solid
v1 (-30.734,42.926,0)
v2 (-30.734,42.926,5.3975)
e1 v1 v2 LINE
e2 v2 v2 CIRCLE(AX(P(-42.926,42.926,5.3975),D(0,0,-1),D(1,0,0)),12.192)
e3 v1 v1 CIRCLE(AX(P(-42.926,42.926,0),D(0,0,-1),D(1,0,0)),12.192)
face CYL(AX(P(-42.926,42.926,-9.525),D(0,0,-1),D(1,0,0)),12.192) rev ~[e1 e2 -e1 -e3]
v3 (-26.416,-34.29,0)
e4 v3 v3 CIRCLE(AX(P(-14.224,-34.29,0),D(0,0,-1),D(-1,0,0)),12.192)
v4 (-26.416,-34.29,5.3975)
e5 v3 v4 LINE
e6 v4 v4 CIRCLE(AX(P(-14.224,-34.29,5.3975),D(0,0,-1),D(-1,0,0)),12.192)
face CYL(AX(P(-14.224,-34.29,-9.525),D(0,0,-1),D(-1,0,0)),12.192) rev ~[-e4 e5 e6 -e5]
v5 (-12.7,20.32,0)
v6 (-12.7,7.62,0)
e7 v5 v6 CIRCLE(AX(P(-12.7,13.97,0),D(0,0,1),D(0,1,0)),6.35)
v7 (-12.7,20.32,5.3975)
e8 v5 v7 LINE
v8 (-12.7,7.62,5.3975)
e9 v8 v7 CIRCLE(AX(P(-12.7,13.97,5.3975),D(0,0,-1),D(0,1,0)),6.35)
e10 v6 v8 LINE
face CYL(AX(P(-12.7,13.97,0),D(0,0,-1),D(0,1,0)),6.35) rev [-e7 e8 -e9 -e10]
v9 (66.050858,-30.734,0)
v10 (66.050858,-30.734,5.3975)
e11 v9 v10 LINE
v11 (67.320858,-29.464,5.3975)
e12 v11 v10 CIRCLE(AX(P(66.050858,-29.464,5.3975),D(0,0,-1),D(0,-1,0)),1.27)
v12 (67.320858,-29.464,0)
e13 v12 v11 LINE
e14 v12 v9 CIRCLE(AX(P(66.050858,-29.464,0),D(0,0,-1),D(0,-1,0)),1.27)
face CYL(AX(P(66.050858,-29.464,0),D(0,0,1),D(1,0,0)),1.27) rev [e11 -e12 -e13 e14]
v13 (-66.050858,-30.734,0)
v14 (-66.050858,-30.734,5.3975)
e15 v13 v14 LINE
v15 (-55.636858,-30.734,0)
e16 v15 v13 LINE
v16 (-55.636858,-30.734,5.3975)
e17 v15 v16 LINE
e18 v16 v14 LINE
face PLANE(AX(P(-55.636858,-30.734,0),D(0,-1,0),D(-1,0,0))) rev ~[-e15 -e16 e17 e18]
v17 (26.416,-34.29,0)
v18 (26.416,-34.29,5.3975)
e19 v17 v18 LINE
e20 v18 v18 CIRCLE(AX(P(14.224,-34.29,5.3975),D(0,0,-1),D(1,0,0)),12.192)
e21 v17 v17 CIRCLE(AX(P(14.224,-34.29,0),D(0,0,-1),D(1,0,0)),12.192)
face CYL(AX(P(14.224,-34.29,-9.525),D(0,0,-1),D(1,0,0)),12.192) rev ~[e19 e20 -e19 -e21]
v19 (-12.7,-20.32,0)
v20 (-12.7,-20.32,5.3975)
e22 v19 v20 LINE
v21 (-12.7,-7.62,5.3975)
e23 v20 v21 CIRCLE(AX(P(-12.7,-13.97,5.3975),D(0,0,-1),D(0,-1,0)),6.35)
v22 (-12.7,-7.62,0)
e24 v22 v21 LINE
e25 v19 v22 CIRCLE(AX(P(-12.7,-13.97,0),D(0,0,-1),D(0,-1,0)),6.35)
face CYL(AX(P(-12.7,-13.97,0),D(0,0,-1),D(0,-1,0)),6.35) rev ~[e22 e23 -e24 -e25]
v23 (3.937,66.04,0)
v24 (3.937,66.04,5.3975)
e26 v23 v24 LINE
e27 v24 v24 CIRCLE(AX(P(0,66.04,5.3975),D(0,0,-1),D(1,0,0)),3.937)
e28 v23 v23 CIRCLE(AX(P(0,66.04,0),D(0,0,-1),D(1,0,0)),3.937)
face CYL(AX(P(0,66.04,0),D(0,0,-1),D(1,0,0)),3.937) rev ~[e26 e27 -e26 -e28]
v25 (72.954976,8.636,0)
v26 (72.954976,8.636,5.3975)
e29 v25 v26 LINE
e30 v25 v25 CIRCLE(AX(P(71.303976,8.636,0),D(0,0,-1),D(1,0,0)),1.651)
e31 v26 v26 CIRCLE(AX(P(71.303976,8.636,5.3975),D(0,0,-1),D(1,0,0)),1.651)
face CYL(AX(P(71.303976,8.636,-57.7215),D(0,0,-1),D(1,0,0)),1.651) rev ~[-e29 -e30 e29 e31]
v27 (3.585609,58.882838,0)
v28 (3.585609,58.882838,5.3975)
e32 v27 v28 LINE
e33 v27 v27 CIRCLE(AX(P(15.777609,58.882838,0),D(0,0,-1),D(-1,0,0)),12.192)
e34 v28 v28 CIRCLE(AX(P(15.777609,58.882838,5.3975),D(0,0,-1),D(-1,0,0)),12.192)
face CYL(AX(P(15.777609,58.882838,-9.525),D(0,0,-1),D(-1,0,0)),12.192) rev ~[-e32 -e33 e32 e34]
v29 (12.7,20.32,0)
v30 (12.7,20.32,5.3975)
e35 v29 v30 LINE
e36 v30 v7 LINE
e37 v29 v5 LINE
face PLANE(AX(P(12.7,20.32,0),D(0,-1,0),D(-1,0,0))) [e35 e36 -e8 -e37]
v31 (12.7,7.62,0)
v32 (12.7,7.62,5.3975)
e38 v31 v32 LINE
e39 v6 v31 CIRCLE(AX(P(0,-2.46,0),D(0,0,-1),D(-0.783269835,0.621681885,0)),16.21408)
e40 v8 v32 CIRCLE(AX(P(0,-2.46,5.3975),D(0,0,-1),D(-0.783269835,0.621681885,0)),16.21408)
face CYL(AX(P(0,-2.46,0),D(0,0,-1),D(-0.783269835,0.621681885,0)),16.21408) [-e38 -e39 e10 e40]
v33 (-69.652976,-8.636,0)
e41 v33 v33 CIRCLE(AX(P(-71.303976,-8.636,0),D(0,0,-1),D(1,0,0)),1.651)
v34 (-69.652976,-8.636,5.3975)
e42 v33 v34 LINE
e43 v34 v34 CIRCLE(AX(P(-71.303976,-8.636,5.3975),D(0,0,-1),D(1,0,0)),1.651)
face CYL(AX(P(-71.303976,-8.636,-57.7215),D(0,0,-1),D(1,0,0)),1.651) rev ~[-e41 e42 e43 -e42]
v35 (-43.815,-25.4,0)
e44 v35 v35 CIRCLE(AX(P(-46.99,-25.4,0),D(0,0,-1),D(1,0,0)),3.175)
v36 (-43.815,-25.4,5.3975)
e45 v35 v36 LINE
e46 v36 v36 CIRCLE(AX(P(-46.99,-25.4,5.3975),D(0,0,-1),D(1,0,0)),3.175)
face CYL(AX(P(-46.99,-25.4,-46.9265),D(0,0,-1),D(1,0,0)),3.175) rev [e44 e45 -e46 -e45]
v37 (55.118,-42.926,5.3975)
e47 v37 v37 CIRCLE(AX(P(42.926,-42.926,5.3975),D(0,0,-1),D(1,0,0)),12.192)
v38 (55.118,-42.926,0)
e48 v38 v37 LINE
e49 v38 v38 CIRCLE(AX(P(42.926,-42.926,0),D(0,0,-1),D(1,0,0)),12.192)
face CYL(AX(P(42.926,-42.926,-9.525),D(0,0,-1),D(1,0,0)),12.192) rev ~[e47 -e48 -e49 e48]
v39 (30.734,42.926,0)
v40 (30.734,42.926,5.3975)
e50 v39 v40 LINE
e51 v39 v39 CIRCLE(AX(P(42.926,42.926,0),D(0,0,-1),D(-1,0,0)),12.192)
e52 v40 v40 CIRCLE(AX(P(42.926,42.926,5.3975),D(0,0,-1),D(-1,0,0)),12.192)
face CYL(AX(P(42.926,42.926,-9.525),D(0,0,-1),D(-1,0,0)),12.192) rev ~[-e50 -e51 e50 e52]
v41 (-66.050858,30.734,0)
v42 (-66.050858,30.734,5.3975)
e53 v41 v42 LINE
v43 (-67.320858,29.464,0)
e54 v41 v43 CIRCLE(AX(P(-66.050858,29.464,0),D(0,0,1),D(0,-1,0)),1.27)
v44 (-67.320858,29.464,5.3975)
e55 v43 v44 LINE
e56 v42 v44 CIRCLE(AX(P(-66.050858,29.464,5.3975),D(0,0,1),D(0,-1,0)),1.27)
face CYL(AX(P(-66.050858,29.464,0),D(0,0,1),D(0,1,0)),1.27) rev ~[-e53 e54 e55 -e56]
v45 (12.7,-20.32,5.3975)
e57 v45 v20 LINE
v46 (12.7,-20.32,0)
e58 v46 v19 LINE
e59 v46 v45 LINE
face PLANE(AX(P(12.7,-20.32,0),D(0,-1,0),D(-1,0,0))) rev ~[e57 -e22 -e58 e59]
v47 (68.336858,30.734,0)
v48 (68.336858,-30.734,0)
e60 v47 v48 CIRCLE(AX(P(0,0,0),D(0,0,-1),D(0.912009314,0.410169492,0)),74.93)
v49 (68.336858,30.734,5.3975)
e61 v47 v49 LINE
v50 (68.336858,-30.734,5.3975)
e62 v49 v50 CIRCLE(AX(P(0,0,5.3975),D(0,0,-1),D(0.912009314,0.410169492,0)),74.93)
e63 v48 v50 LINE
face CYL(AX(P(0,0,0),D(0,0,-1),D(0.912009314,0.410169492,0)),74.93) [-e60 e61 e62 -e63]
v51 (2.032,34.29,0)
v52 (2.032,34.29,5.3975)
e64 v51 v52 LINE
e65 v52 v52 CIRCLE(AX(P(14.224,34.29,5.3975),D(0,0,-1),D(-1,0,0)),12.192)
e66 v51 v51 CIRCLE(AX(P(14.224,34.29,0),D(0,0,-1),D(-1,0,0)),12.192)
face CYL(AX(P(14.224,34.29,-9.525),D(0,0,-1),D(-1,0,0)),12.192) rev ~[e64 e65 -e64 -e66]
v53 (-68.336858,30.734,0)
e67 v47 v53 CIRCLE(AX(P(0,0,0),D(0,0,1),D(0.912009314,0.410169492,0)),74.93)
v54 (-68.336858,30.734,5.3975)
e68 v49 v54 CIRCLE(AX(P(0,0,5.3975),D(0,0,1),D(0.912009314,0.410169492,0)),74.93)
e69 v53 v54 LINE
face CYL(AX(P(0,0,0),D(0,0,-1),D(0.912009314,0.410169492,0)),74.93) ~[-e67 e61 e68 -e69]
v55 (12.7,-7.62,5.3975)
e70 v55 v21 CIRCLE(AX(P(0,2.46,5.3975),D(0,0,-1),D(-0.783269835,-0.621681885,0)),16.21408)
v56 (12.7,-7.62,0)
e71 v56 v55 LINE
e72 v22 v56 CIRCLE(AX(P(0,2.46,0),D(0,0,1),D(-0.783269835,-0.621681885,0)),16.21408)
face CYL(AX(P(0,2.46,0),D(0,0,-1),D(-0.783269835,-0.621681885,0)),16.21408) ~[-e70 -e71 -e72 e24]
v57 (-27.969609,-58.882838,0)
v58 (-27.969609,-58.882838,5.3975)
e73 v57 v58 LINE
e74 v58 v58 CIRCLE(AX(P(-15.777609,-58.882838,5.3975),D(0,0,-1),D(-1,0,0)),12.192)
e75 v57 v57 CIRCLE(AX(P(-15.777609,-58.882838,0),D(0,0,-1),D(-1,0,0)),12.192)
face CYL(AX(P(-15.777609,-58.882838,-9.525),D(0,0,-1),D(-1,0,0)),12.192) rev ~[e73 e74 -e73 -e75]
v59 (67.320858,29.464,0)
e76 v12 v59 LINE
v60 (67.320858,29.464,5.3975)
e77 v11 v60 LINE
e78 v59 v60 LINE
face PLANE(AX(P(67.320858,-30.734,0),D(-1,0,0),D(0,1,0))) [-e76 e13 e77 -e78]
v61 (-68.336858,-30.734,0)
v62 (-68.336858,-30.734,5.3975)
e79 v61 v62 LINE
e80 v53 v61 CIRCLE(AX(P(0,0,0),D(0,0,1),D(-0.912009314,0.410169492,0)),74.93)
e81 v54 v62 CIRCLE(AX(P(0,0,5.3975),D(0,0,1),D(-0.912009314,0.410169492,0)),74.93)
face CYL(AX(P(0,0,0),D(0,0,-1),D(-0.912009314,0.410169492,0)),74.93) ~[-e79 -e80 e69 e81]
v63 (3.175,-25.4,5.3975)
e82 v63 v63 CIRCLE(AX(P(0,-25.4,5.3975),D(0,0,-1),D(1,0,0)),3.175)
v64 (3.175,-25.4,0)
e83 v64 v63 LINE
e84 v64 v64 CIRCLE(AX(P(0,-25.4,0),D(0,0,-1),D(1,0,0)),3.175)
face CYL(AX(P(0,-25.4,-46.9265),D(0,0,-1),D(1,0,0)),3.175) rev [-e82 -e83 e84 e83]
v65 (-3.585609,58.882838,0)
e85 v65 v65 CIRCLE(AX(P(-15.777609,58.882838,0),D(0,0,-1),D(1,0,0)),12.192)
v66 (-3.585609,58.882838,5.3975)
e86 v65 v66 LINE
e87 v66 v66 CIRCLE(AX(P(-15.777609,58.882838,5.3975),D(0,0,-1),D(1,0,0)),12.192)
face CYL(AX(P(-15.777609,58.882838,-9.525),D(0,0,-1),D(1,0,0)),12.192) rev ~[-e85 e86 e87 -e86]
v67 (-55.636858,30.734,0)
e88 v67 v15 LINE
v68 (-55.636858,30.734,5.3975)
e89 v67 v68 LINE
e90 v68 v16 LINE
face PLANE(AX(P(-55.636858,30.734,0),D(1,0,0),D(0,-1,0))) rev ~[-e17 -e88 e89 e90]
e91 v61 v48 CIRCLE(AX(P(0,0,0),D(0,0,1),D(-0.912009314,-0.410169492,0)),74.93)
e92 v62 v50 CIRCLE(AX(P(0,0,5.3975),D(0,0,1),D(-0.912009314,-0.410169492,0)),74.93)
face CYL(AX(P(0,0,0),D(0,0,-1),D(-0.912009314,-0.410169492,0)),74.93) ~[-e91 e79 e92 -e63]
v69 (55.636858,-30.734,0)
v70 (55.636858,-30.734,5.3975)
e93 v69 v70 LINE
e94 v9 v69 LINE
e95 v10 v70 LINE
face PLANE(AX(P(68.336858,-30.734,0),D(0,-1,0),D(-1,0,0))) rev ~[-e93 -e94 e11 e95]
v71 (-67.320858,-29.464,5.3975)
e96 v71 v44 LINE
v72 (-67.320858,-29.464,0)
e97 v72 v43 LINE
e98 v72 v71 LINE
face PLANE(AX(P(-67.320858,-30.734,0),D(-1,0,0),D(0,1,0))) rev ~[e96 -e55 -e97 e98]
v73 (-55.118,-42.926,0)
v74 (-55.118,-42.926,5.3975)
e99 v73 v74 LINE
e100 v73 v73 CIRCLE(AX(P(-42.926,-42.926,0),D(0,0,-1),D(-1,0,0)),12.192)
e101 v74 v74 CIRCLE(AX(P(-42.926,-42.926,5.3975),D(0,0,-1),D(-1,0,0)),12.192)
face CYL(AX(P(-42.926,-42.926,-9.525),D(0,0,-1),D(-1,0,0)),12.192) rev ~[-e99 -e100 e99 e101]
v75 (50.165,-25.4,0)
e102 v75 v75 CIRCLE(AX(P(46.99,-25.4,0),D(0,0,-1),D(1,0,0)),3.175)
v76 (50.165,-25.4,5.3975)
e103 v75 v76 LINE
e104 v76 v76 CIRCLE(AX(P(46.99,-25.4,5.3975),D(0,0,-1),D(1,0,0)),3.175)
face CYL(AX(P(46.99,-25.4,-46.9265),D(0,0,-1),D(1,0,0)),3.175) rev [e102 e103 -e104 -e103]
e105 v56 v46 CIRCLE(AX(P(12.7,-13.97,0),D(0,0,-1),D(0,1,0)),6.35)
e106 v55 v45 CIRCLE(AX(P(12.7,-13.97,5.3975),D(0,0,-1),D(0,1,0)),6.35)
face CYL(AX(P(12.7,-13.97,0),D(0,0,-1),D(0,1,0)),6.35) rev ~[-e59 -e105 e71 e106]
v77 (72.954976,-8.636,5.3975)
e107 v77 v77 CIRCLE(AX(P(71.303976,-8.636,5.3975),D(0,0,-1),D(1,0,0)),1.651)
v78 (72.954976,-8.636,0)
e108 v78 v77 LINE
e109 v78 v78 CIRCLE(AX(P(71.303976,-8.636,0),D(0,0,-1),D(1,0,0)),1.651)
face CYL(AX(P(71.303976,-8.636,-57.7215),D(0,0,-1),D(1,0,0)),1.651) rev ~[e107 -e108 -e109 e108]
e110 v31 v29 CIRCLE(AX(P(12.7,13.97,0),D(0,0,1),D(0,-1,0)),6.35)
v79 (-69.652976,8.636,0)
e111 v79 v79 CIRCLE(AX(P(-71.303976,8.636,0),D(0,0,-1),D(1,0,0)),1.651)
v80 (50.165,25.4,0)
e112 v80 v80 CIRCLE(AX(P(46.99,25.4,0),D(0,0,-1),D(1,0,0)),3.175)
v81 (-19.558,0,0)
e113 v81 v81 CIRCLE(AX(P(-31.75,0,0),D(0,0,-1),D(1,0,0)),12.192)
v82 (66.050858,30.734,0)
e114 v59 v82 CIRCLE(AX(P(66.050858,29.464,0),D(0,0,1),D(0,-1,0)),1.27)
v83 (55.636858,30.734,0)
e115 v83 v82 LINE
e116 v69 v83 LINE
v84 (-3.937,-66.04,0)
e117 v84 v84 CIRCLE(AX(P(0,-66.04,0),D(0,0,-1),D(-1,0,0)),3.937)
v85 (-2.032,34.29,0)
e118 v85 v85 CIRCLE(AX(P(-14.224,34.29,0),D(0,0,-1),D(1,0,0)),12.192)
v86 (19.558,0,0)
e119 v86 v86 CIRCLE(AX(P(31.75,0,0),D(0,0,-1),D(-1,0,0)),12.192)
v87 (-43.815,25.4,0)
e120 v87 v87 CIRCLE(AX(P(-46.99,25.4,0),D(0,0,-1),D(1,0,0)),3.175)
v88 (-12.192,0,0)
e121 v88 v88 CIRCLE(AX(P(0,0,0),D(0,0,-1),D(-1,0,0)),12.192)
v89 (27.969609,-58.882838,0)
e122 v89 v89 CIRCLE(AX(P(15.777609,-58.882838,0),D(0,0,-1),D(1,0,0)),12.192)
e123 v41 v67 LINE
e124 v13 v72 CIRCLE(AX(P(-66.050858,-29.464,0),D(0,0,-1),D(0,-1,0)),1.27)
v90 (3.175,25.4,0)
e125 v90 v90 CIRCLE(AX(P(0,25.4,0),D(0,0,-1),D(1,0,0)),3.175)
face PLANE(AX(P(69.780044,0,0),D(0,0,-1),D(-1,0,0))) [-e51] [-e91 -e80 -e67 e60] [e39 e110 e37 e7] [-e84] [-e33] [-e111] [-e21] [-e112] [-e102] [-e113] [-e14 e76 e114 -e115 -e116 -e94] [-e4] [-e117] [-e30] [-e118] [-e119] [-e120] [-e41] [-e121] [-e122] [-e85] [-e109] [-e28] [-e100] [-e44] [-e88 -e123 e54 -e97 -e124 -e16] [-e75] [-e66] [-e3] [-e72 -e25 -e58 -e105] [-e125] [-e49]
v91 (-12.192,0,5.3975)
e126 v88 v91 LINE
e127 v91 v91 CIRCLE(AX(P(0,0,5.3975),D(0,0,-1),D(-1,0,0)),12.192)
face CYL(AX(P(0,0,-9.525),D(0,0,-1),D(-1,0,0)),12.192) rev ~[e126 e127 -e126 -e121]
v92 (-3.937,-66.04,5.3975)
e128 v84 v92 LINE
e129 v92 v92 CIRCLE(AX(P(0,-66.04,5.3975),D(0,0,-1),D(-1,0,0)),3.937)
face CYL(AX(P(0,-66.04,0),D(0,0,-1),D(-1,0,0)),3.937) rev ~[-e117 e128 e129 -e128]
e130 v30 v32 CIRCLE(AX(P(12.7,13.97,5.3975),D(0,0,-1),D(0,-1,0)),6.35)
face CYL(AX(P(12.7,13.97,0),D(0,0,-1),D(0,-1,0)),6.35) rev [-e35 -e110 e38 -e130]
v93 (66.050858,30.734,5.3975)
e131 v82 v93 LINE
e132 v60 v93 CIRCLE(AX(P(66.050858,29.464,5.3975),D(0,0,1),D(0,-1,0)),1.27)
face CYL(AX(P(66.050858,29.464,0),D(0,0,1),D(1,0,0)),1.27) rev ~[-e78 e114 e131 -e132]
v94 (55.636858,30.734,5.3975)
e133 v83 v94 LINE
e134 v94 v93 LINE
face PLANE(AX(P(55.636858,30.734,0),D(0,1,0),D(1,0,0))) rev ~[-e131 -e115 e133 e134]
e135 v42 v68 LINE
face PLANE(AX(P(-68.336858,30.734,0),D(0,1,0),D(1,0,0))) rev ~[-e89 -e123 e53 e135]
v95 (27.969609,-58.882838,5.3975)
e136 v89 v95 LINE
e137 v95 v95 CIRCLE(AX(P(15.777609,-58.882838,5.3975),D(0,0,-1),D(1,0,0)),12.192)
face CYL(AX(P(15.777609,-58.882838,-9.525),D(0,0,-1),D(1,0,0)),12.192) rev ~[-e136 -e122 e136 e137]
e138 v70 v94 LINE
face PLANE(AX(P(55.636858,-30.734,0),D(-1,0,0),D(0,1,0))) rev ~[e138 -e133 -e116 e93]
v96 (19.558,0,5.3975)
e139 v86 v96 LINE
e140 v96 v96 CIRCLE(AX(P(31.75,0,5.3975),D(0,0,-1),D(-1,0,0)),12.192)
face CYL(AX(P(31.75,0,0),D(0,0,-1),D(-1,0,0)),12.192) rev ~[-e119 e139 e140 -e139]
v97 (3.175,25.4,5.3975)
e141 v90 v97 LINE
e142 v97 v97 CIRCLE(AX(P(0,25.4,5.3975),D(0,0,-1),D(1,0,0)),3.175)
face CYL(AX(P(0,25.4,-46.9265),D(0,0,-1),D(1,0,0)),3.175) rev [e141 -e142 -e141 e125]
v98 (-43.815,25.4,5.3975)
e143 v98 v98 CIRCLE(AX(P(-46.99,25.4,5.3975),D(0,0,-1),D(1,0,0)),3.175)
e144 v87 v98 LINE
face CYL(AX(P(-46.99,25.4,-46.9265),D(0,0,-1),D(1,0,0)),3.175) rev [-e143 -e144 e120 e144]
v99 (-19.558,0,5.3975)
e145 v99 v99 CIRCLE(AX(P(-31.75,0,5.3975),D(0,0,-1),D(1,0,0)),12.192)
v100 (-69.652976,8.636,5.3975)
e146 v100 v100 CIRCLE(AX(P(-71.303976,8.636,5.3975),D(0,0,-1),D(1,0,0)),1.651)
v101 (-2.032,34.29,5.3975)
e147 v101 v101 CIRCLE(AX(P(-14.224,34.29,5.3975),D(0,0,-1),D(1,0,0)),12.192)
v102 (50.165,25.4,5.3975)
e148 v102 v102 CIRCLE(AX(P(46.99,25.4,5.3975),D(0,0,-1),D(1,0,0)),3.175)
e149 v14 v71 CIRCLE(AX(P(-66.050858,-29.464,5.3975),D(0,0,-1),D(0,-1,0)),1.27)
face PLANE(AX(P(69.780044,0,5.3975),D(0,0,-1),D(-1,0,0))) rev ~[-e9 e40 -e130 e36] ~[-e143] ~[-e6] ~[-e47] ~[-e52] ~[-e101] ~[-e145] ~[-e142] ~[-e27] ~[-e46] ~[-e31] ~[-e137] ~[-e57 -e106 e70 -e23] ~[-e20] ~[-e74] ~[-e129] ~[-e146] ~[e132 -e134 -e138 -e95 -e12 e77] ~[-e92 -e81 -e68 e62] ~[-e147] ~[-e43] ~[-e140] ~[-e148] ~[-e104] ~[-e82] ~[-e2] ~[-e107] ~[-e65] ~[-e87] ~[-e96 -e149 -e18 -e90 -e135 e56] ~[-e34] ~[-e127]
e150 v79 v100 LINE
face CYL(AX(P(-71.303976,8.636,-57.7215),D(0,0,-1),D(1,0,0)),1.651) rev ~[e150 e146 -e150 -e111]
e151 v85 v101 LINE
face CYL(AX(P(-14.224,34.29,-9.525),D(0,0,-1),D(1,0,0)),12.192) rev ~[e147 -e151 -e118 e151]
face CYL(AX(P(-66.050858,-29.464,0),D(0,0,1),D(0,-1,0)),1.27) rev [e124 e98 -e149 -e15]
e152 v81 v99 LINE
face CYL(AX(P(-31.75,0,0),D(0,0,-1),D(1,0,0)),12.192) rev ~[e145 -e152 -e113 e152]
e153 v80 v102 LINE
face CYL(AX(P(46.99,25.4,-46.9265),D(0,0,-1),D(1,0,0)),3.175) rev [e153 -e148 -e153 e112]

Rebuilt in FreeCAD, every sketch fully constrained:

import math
import FreeCAD as App
import Part
import Sketcher
Q = App.Units.Quantity


def edges_at(feature, points):
    """Names of the edges that pass closest to the given points."""
    edges = feature.Shape.Edges
    near = lambda p: min(range(len(edges)), key=lambda i: edges[i].distToShape(Part.Vertex(*p))[0])
    return sorted({f"Edge{near(p) + 1}" for p in points})

doc = App.newDocument("Part")
body = doc.addObject("PartDesign::Body", "Body")

sketch1 = doc.addObject("Sketcher::SketchObject", "Sketch")
body.addObject(sketch1)
sketch1.AttachmentSupport = (doc.XY_Plane, [""])
sketch1.MapMode = "FlatFace"
sketch1.addGeometry(Part.LineSegment(App.Vector(-68.3, 30.7, 0), App.Vector(-55.6, 30.7, 0)), False)
sketch1.addGeometry(Part.LineSegment(App.Vector(-55.6, 30.7, 0), App.Vector(-55.6, -30.7, 0)), False)
sketch1.addGeometry(Part.LineSegment(App.Vector(-55.6, -30.7, 0), App.Vector(-68.3, -30.7, 0)), False)
sketch1.addGeometry(Part.ArcOfCircle(Part.Circle(App.Vector(0, 0, 0), App.Vector(0, 0, 1), 74.9), math.radians(-156), math.radians(-24)), False)
sketch1.addGeometry(Part.LineSegment(App.Vector(68.3, -30.7, 0), App.Vector(55.6, -30.7, 0)), False)
sketch1.addGeometry(Part.LineSegment(App.Vector(55.6, -30.7, 0), App.Vector(55.6, 30.7, 0)), False)
sketch1.addGeometry(Part.LineSegment(App.Vector(55.6, 30.7, 0), App.Vector(68.3, 30.7, 0)), False)
sketch1.addGeometry(Part.ArcOfCircle(Part.Circle(App.Vector(0, 0, 0), App.Vector(0, 0, 1), 74.9), math.radians(24), math.radians(156)), False)
sketch1.addGeometry(Part.Circle(App.Vector(-45.5, -11, 0), App.Vector(0, 0, 1), 1.7), False)
sketch1.addGeometry(Part.Circle(App.Vector(-20.1, -10.8, 0), App.Vector(0, 0, 1), 1.7), False)
sketch1.addGeometry(Part.Circle(App.Vector(20.1, -10.8, 0), App.Vector(0, 0, 1), 1.7), False)
sketch1.addGeometry(Part.Circle(App.Vector(45.5, -11, 0), App.Vector(0, 0, 1), 1.7), False)
sketch1.addGeometry(Part.Circle(App.Vector(-45.5, 11, 0), App.Vector(0, 0, 1), 1.7), False)
sketch1.addGeometry(Part.Circle(App.Vector(-20.1, 10.8, 0), App.Vector(0, 0, 1), 1.7), False)
sketch1.addGeometry(Part.Circle(App.Vector(20.1, 10.8, 0), App.Vector(0, 0, 1), 1.7), False)
sketch1.addGeometry(Part.Circle(App.Vector(45.5, 11, 0), App.Vector(0, 0, 1), 1.7), False)
sketch1.addConstraint(Sketcher.Constraint("Coincident", 0, 2, 1, 1))
sketch1.addConstraint(Sketcher.Constraint("Coincident", 1, 2, 2, 1))
sketch1.addConstraint(Sketcher.Constraint("Coincident", 2, 2, 3, 1))
sketch1.addConstraint(Sketcher.Constraint("Coincident", 3, 2, 4, 1))
sketch1.addConstraint(Sketcher.Constraint("Coincident", 4, 2, 5, 1))
sketch1.addConstraint(Sketcher.Constraint("Coincident", 5, 2, 6, 1))
sketch1.addConstraint(Sketcher.Constraint("Coincident", 6, 2, 7, 1))
sketch1.addConstraint(Sketcher.Constraint("Coincident", 7, 2, 0, 1))
sketch1.addConstraint(Sketcher.Constraint("Horizontal", 0))
sketch1.addConstraint(Sketcher.Constraint("Vertical", 1))
sketch1.addConstraint(Sketcher.Constraint("Horizontal", 2))
sketch1.addConstraint(Sketcher.Constraint("Horizontal", 4))
sketch1.addConstraint(Sketcher.Constraint("Vertical", 5))
sketch1.addConstraint(Sketcher.Constraint("Horizontal", 6))
sketch1.addConstraint(Sketcher.Constraint("Coincident", 3, 3, -1, 1))
sketch1.addConstraint(Sketcher.Constraint("Coincident", 7, 3, -1, 1))
sketch1.addConstraint(Sketcher.Constraint("Equal", 3, 7))
sketch1.addConstraint(Sketcher.Constraint("Equal", 8, 9))
sketch1.addConstraint(Sketcher.Constraint("Equal", 9, 10))
sketch1.addConstraint(Sketcher.Constraint("Equal", 10, 11))
sketch1.addConstraint(Sketcher.Constraint("Equal", 11, 12))
sketch1.addConstraint(Sketcher.Constraint("Equal", 12, 13))
sketch1.addConstraint(Sketcher.Constraint("Equal", 13, 14))
sketch1.addConstraint(Sketcher.Constraint("Equal", 14, 15))
sketch1.addConstraint(Sketcher.Constraint("Symmetric", 11, 3, 12, 3, -1, 1))
sketch1.addConstraint(Sketcher.Constraint("Symmetric", 10, 3, 13, 3, -1, 1))
sketch1.addConstraint(Sketcher.Constraint("Symmetric", 9, 3, 14, 3, -1, 1))
sketch1.addConstraint(Sketcher.Constraint("Symmetric", 8, 3, 15, 3, -1, 1))
sketch1.addConstraint(Sketcher.Constraint("Symmetric", 0, 2, 4, 2, -1, 1))
sketch1.addConstraint(Sketcher.Constraint("Symmetric", 9, 3, 10, 3, -2))
sketch1.addConstraint(Sketcher.Constraint("Symmetric", 8, 3, 11, 3, -2))
sketch1.addConstraint(Sketcher.Constraint("Horizontal", 2, 2, 3, 2))
sketch1.addConstraint(Sketcher.Constraint("Horizontal", 0, 2, 5, 2))
sketch1.addConstraint(Sketcher.Constraint("Diameter", 8, Q("0.13 in")))
sketch1.addConstraint(Sketcher.Constraint("Radius", 3, Q("2.95 in")))
sketch1.addConstraint(Sketcher.Constraint("DistanceX", 0, 1, 0, 2, Q("0.5 in")))
sketch1.addConstraint(Sketcher.Constraint("DistanceY", 1, 2, 1, 1, Q("2.42 in")))
sketch1.addConstraint(Sketcher.Constraint("DistanceX", 8, 3, -1, 1, Q("1.79 in")))
sketch1.addConstraint(Sketcher.Constraint("DistanceY", 8, 3, 9, 3, Q("0.01 in")))
sketch1.addConstraint(Sketcher.Constraint("DistanceY", 8, 3, 12, 3, Q("0.87 in")))
sketch1.addConstraint(Sketcher.Constraint("DistanceX", 9, 3, 10, 3, Q("1.5801 in")))
pad1 = doc.addObject("PartDesign::Pad", "Pad")
body.addObject(pad1)
pad1.Profile = sketch1
pad1.Length = Q("0.2125 in")

sketch2 = doc.addObject("Sketcher::SketchObject", "Sketch001")
body.addObject(sketch2)
sketch2.AttachmentSupport = (doc.XY_Plane, [""])
sketch2.MapMode = "FlatFace"
sketch2.addGeometry(Part.LineSegment(App.Vector(68.3, -30.7, 0), App.Vector(67.3, -30.7, 0)), False)
sketch2.addGeometry(Part.LineSegment(App.Vector(67.3, -30.7, 0), App.Vector(67.3, 30.7, 0)), False)
sketch2.addGeometry(Part.LineSegment(App.Vector(67.3, 30.7, 0), App.Vector(68.3, 30.7, 0)), False)
sketch2.addGeometry(Part.ArcOfCircle(Part.Circle(App.Vector(0, 0, 0), App.Vector(0, 0, 1), 74.9), math.radians(-24), math.radians(24)), False)
sketch2.addGeometry(Part.LineSegment(App.Vector(-68.3, 30.7, 0), App.Vector(-67.3, 30.7, 0)), False)
sketch2.addGeometry(Part.LineSegment(App.Vector(-67.3, 30.7, 0), App.Vector(-67.3, -30.7, 0)), False)
sketch2.addGeometry(Part.LineSegment(App.Vector(-67.3, -30.7, 0), App.Vector(-68.3, -30.7, 0)), False)
sketch2.addGeometry(Part.ArcOfCircle(Part.Circle(App.Vector(0, 0, 0), App.Vector(0, 0, 1), 74.9), math.radians(156), math.radians(204)), False)
sketch2.addConstraint(Sketcher.Constraint("Coincident", 0, 2, 1, 1))
sketch2.addConstraint(Sketcher.Constraint("Coincident", 1, 2, 2, 1))
sketch2.addConstraint(Sketcher.Constraint("Coincident", 2, 2, 3, 2))
sketch2.addConstraint(Sketcher.Constraint("Coincident", 3, 1, 0, 1))
sketch2.addConstraint(Sketcher.Constraint("Coincident", 4, 2, 5, 1))
sketch2.addConstraint(Sketcher.Constraint("Coincident", 5, 2, 6, 1))
sketch2.addConstraint(Sketcher.Constraint("Coincident", 6, 2, 7, 2))
sketch2.addConstraint(Sketcher.Constraint("Coincident", 7, 1, 4, 1))
sketch2.addConstraint(Sketcher.Constraint("Horizontal", 0))
sketch2.addConstraint(Sketcher.Constraint("Vertical", 1))
sketch2.addConstraint(Sketcher.Constraint("Horizontal", 2))
sketch2.addConstraint(Sketcher.Constraint("Horizontal", 4))
sketch2.addConstraint(Sketcher.Constraint("Vertical", 5))
sketch2.addConstraint(Sketcher.Constraint("Horizontal", 6))
sketch2.addConstraint(Sketcher.Constraint("Coincident", 3, 3, -1, 1))
sketch2.addConstraint(Sketcher.Constraint("Coincident", 7, 3, -1, 1))
sketch2.addConstraint(Sketcher.Constraint("Equal", 3, 7))
sketch2.addConstraint(Sketcher.Constraint("Symmetric", 0, 2, 4, 2, -1, 1))
sketch2.addConstraint(Sketcher.Constraint("Horizontal", 2, 2, 4, 2))
sketch2.addConstraint(Sketcher.Constraint("Horizontal", 3, 1, 5, 2))
sketch2.addConstraint(Sketcher.Constraint("Radius", 3, Q("2.95 in")))
sketch2.addConstraint(Sketcher.Constraint("DistanceX", 0, 2, 0, 1, Q("0.04 in")))
sketch2.addConstraint(Sketcher.Constraint("DistanceY", 1, 1, 1, 2, Q("2.42 in")))
pad2 = doc.addObject("PartDesign::Pad", "Pad001")
body.addObject(pad2)
pad2.Profile = sketch2
pad2.Length = Q("0.2125 in")
doc.recompute()

fillet = doc.addObject("PartDesign::Fillet", "Fillet")
body.addObject(fillet)
fillet.Base = (pad2, edges_at(pad2, [
    (67.321, -30.734, 2.699),
    (67.321, 30.734, 2.699),
    (-67.321, 30.734, 2.699),
    (-67.321, -30.734, 2.699),
]))
fillet.Radius = Q("0.05 in")

sketch3 = doc.addObject("Sketcher::SketchObject", "Sketch002")
body.addObject(sketch3)
sketch3.AttachmentSupport = (doc.XY_Plane, [""])
sketch3.MapMode = "FlatFace"
sketch3.addGeometry(Part.LineSegment(App.Vector(-17, 15, 0), App.Vector(-17, -16, 0)), False)
sketch3.addGeometry(Part.LineSegment(App.Vector(-17, -16, 0), App.Vector(-53, -16, 0)), False)
sketch3.addGeometry(Part.LineSegment(App.Vector(-53, -16, 0), App.Vector(-53, 15, 0)), False)
sketch3.addGeometry(Part.LineSegment(App.Vector(-53, 15, 0), App.Vector(-17, 15, 0)), False)
sketch3.addGeometry(Part.LineSegment(App.Vector(51, 18, 0), App.Vector(51, -16, 0)), False)
sketch3.addGeometry(Part.LineSegment(App.Vector(51, -16, 0), App.Vector(15, -16, 0)), False)
sketch3.addGeometry(Part.LineSegment(App.Vector(15, -16, 0), App.Vector(15, 18, 0)), False)
sketch3.addGeometry(Part.LineSegment(App.Vector(15, 18, 0), App.Vector(51, 18, 0)), False)
sketch3.addConstraint(Sketcher.Constraint("Coincident", 0, 2, 1, 1))
sketch3.addConstraint(Sketcher.Constraint("Coincident", 1, 2, 2, 1))
sketch3.addConstraint(Sketcher.Constraint("Coincident", 2, 2, 3, 1))
sketch3.addConstraint(Sketcher.Constraint("Coincident", 3, 2, 0, 1))
sketch3.addConstraint(Sketcher.Constraint("Coincident", 4, 2, 5, 1))
sketch3.addConstraint(Sketcher.Constraint("Coincident", 5, 2, 6, 1))
sketch3.addConstraint(Sketcher.Constraint("Coincident", 6, 2, 7, 1))
sketch3.addConstraint(Sketcher.Constraint("Coincident", 7, 2, 4, 1))
sketch3.addConstraint(Sketcher.Constraint("Vertical", 0))
sketch3.addConstraint(Sketcher.Constraint("Horizontal", 1))
sketch3.addConstraint(Sketcher.Constraint("Vertical", 2))
sketch3.addConstraint(Sketcher.Constraint("Horizontal", 3))
sketch3.addConstraint(Sketcher.Constraint("Vertical", 4))
sketch3.addConstraint(Sketcher.Constraint("Horizontal", 5))
sketch3.addConstraint(Sketcher.Constraint("Vertical", 6))
sketch3.addConstraint(Sketcher.Constraint("Horizontal", 7))
sketch3.addConstraint(Sketcher.Constraint("Horizontal", 1, 2, 4, 2))
sketch3.addConstraint(Sketcher.Constraint("DistanceX", 1, 2, 1, 1, Q("36.10592 mm")))
sketch3.addConstraint(Sketcher.Constraint("DistanceY", 0, 2, 0, 1, Q("30.801251 mm")))
sketch3.addConstraint(Sketcher.Constraint("DistanceX", 5, 2, 5, 1, Q("35.958514 mm")))
sketch3.addConstraint(Sketcher.Constraint("DistanceY", 4, 2, 4, 1, Q("33.469346 mm")))
sketch3.addConstraint(Sketcher.Constraint("DistanceX", -1, 1, 4, 2, Q("50.809821 mm")))
sketch3.addConstraint(Sketcher.Constraint("DistanceY", -1, 1, 6, 2, Q("17.683569 mm")))
sketch3.addConstraint(Sketcher.Constraint("DistanceX", 0, 2, 5, 2, Q("31.583191 mm")))
pad3 = doc.addObject("PartDesign::Pad", "Pad002")
body.addObject(pad3)
pad3.Profile = sketch3
pad3.Length = Q("0.2125 in")

sketch4 = doc.addObject("Sketcher::SketchObject", "Sketch003")
body.addObject(sketch4)
sketch4.AttachmentSupport = (doc.XY_Plane, [""])
sketch4.MapMode = "FlatFace"
sketch4.addGeometry(Part.Circle(App.Vector(45.8, 24.7, 0), App.Vector(0, 0, 1), 3.2), False)
sketch4.addGeometry(Part.Circle(App.Vector(0.2, 40.4, 0), App.Vector(0, 0, 1), 3.2), False)
sketch4.addGeometry(Part.Circle(App.Vector(-45.6, 25.5, 0), App.Vector(0, 0, 1), 3.2), False)
sketch4.addGeometry(Part.Circle(App.Vector(-46, -25.3, 0), App.Vector(0, 0, 1), 3.2), False)
sketch4.addGeometry(Part.Circle(App.Vector(-0.5, -40.9, 0), App.Vector(0, 0, 1), 3.2), False)
sketch4.addGeometry(Part.Circle(App.Vector(45.4, -26, 0), App.Vector(0, 0, 1), 3.2), False)
sketch4.addConstraint(Sketcher.Constraint("Equal", 0, 1))
sketch4.addConstraint(Sketcher.Constraint("Equal", 1, 2))
sketch4.addConstraint(Sketcher.Constraint("Equal", 2, 3))
sketch4.addConstraint(Sketcher.Constraint("Equal", 3, 4))
sketch4.addConstraint(Sketcher.Constraint("Equal", 4, 5))
sketch4.addConstraint(Sketcher.Constraint("Diameter", 0, Q("0.25 in")))
sketch4.addConstraint(Sketcher.Constraint("DistanceY", -1, 1, 0, 3, Q("24.74937 mm")))
sketch4.addConstraint(Sketcher.Constraint("DistanceX", -1, 1, 1, 3, Q("0.23118 mm")))
sketch4.addConstraint(Sketcher.Constraint("DistanceY", -1, 1, 1, 3, Q("40.373111 mm")))
sketch4.addConstraint(Sketcher.Constraint("DistanceY", 3, 3, -1, 1, Q("25.280278 mm")))
sketch4.addConstraint(Sketcher.Constraint("DistanceX", 4, 3, -1, 1, Q("0.451982 mm")))
sketch4.addConstraint(Sketcher.Constraint("DistanceY", 4, 3, -1, 1, Q("40.904018 mm")))
sketch4.addConstraint(Sketcher.Constraint("DistanceX", 2, 3, 0, 3, Q("91.43677 mm")))
sketch4.addConstraint(Sketcher.Constraint("DistanceX", 3, 3, 5, 3, Q("91.43677 mm")))
sketch4.addConstraint(Sketcher.Constraint("DistanceX", -1, 1, 0, 3, Q("45.821472 mm")))
sketch4.addConstraint(Sketcher.Constraint("DistanceY", -1, 1, 2, 3, Q("25.517927 mm")))
sketch4.addConstraint(Sketcher.Constraint("DistanceX", 3, 3, -1, 1, Q("46.042274 mm")))
sketch4.addConstraint(Sketcher.Constraint("DistanceY", 5, 3, -1, 1, Q("26.048835 mm")))
pocket1 = doc.addObject("PartDesign::Pocket", "Pocket")
body.addObject(pocket1)
pocket1.Profile = sketch4
pocket1.Type = "ThroughAll"
pocket1.Midplane = True

sketch5 = doc.addObject("Sketcher::SketchObject", "Sketch004")
body.addObject(sketch5)
sketch5.AttachmentSupport = (doc.XY_Plane, [""])
sketch5.MapMode = "FlatFace"
sketch5.addGeometry(Part.Circle(App.Vector(45.8, 24.7, 0), App.Vector(0, 0, 1), 4.4), False)
sketch5.addGeometry(Part.Circle(App.Vector(0.2, 40.4, 0), App.Vector(0, 0, 1), 4.4), False)
sketch5.addGeometry(Part.Circle(App.Vector(-45.6, 25.5, 0), App.Vector(0, 0, 1), 4.4), False)
sketch5.addGeometry(Part.Circle(App.Vector(-46, -25.3, 0), App.Vector(0, 0, 1), 4.4), False)
sketch5.addGeometry(Part.Circle(App.Vector(-0.5, -40.9, 0), App.Vector(0, 0, 1), 4.4), False)
sketch5.addGeometry(Part.Circle(App.Vector(45.4, -26, 0), App.Vector(0, 0, 1), 4.4), False)
sketch5.addConstraint(Sketcher.Constraint("Equal", 0, 1))
sketch5.addConstraint(Sketcher.Constraint("Equal", 1, 2))
sketch5.addConstraint(Sketcher.Constraint("Equal", 2, 3))
sketch5.addConstraint(Sketcher.Constraint("Equal", 3, 4))
sketch5.addConstraint(Sketcher.Constraint("Equal", 4, 5))
sketch5.addConstraint(Sketcher.Constraint("Diameter", 0, Q("0.35 in")))
sketch5.addConstraint(Sketcher.Constraint("DistanceY", -1, 1, 0, 3, Q("24.74937 mm")))
sketch5.addConstraint(Sketcher.Constraint("DistanceX", -1, 1, 1, 3, Q("0.23118 mm")))
sketch5.addConstraint(Sketcher.Constraint("DistanceY", -1, 1, 1, 3, Q("40.373111 mm")))
sketch5.addConstraint(Sketcher.Constraint("DistanceY", 3, 3, -1, 1, Q("25.280278 mm")))
sketch5.addConstraint(Sketcher.Constraint("DistanceX", 4, 3, -1, 1, Q("0.451982 mm")))
sketch5.addConstraint(Sketcher.Constraint("DistanceY", 4, 3, -1, 1, Q("40.904018 mm")))
sketch5.addConstraint(Sketcher.Constraint("DistanceX", 2, 3, 0, 3, Q("91.43677 mm")))
sketch5.addConstraint(Sketcher.Constraint("DistanceX", 3, 3, 5, 3, Q("91.43677 mm")))
sketch5.addConstraint(Sketcher.Constraint("DistanceX", -1, 1, 0, 3, Q("45.821472 mm")))
sketch5.addConstraint(Sketcher.Constraint("DistanceY", -1, 1, 2, 3, Q("25.517927 mm")))
sketch5.addConstraint(Sketcher.Constraint("DistanceX", 3, 3, -1, 1, Q("46.042274 mm")))
sketch5.addConstraint(Sketcher.Constraint("DistanceY", 5, 3, -1, 1, Q("26.048835 mm")))
pad4 = doc.addObject("PartDesign::Pad", "Pad003")
body.addObject(pad4)
pad4.Profile = sketch5
pad4.Length = Q("0.2125 in")

sketch6 = doc.addObject("Sketcher::SketchObject", "Sketch005")
body.addObject(sketch6)
sketch6.AttachmentSupport = (doc.XY_Plane, [""])
sketch6.MapMode = "FlatFace"
sketch6.AttachmentOffset = App.Placement(App.Vector(0, 0, -0.375 * 25.4), App.Rotation())
sketch6.addGeometry(Part.Circle(App.Vector(43, 43, 0), App.Vector(0, 0, 1), 12), False)
sketch6.addGeometry(Part.Circle(App.Vector(16, 59, 0), App.Vector(0, 0, 1), 12), False)
sketch6.addGeometry(Part.Circle(App.Vector(14, 34, 0), App.Vector(0, 0, 1), 12), False)
sketch6.addGeometry(Part.Circle(App.Vector(0, 0, 0), App.Vector(0, 0, 1), 12), False)
sketch6.addGeometry(Part.Circle(App.Vector(-16, 59, 0), App.Vector(0, 0, 1), 12), False)
sketch6.addGeometry(Part.Circle(App.Vector(-14, 34, 0), App.Vector(0, 0, 1), 12), False)
sketch6.addGeometry(Part.Circle(App.Vector(-43, 43, 0), App.Vector(0, 0, 1), 12), False)
sketch6.addGeometry(Part.Circle(App.Vector(-14, -34, 0), App.Vector(0, 0, 1), 12), False)
sketch6.addGeometry(Part.Circle(App.Vector(-43, -43, 0), App.Vector(0, 0, 1), 12), False)
sketch6.addGeometry(Part.Circle(App.Vector(-16, -59, 0), App.Vector(0, 0, 1), 12), False)
sketch6.addGeometry(Part.Circle(App.Vector(16, -59, 0), App.Vector(0, 0, 1), 12), False)
sketch6.addGeometry(Part.Circle(App.Vector(43, -43, 0), App.Vector(0, 0, 1), 12), False)
sketch6.addGeometry(Part.Circle(App.Vector(14, -34, 0), App.Vector(0, 0, 1), 12), False)
sketch6.addConstraint(Sketcher.Constraint("Coincident", 3, 3, -1, 1))
sketch6.addConstraint(Sketcher.Constraint("Equal", 0, 1))
sketch6.addConstraint(Sketcher.Constraint("Equal", 1, 2))
sketch6.addConstraint(Sketcher.Constraint("Equal", 2, 3))
sketch6.addConstraint(Sketcher.Constraint("Equal", 3, 4))
sketch6.addConstraint(Sketcher.Constraint("Equal", 4, 5))
sketch6.addConstraint(Sketcher.Constraint("Equal", 5, 6))
sketch6.addConstraint(Sketcher.Constraint("Equal", 6, 7))
sketch6.addConstraint(Sketcher.Constraint("Equal", 7, 8))
sketch6.addConstraint(Sketcher.Constraint("Equal", 8, 9))
sketch6.addConstraint(Sketcher.Constraint("Equal", 9, 10))
sketch6.addConstraint(Sketcher.Constraint("Equal", 10, 11))
sketch6.addConstraint(Sketcher.Constraint("Equal", 11, 12))
sketch6.addConstraint(Sketcher.Constraint("Symmetric", 2, 3, 7, 3, -1, 1))
sketch6.addConstraint(Sketcher.Constraint("Symmetric", 0, 3, 8, 3, -1, 1))
sketch6.addConstraint(Sketcher.Constraint("Symmetric", 1, 3, 9, 3, -1, 1))
sketch6.addConstraint(Sketcher.Constraint("Symmetric", 4, 3, 10, 3, -1, 1))
sketch6.addConstraint(Sketcher.Constraint("Symmetric", 6, 3, 11, 3, -1, 1))
sketch6.addConstraint(Sketcher.Constraint("Symmetric", 5, 3, 12, 3, -1, 1))
sketch6.addConstraint(Sketcher.Constraint("Symmetric", 1, 3, 4, 3, -2))
sketch6.addConstraint(Sketcher.Constraint("Symmetric", 2, 3, 5, 3, -2))
sketch6.addConstraint(Sketcher.Constraint("Symmetric", 0, 3, 6, 3, -2))
sketch6.addConstraint(Sketcher.Constraint("Diameter", 0, Q("0.96 in")))
sketch6.addConstraint(Sketcher.Constraint("DistanceY", 7, 3, 5, 3, Q("2.7 in")))
sketch6.addConstraint(Sketcher.Constraint("DistanceX", -1, 1, 0, 3, Q("1.69 in")))
sketch6.addConstraint(Sketcher.Constraint("DistanceY", -1, 1, 0, 3, Q("1.69 in")))
sketch6.addConstraint(Sketcher.Constraint("DistanceX", -1, 1, 2, 3, Q("0.56 in")))
sketch6.addConstraint(Sketcher.Constraint("DistanceX", -1, 1, 1, 3, Q("15.777609 mm")))
sketch6.addConstraint(Sketcher.Constraint("DistanceY", -1, 1, 1, 3, Q("58.882838 mm")))
pocket2 = doc.addObject("PartDesign::Pocket", "Pocket001")
body.addObject(pocket2)
pocket2.Profile = sketch6
pocket2.Type = "ThroughAll"
pocket2.Midplane = True

sketch7 = doc.addObject("Sketcher::SketchObject", "Sketch006")
body.addObject(sketch7)
sketch7.AttachmentSupport = (doc.XY_Plane, [""])
sketch7.MapMode = "FlatFace"
sketch7.addGeometry(Part.Circle(App.Vector(32, 0, 0), App.Vector(0, 0, 1), 12), False)
sketch7.addGeometry(Part.Circle(App.Vector(-32, 0, 0), App.Vector(0, 0, 1), 12), False)
sketch7.addGeometry(Part.LineSegment(App.Vector(-13, 20, 0), App.Vector(13, 20, 0)), False)
sketch7.addGeometry(Part.ArcOfCircle(Part.Circle(App.Vector(13, 14, 0), App.Vector(0, 0, 1), 6), math.radians(-90), math.radians(90)), False)
sketch7.addGeometry(Part.ArcOfCircle(Part.Circle(App.Vector(0, -2, 0), App.Vector(0, 0, 1), 16), math.radians(38), math.radians(142)), False)
sketch7.addGeometry(Part.ArcOfCircle(Part.Circle(App.Vector(-13, 14, 0), App.Vector(0, 0, 1), 6), math.radians(90), math.radians(270)), False)
sketch7.addGeometry(Part.LineSegment(App.Vector(13, -20, 0), App.Vector(-13, -20, 0)), False)
sketch7.addGeometry(Part.ArcOfCircle(Part.Circle(App.Vector(-13, -14, 0), App.Vector(0, 0, 1), 6), math.radians(90), math.radians(270)), False)
sketch7.addGeometry(Part.ArcOfCircle(Part.Circle(App.Vector(0, 2, 0), App.Vector(0, 0, 1), 16), math.radians(-142), math.radians(-38)), False)
sketch7.addGeometry(Part.ArcOfCircle(Part.Circle(App.Vector(13, -14, 0), App.Vector(0, 0, 1), 6), math.radians(-90), math.radians(90)), False)
sketch7.addConstraint(Sketcher.Constraint("Tangent", 2, 2, 3, 2))
sketch7.addConstraint(Sketcher.Constraint("Coincident", 3, 1, 4, 1))
sketch7.addConstraint(Sketcher.Constraint("Coincident", 4, 2, 5, 2))
sketch7.addConstraint(Sketcher.Constraint("Tangent", 5, 1, 2, 1))
sketch7.addConstraint(Sketcher.Constraint("Tangent", 6, 2, 7, 2))
sketch7.addConstraint(Sketcher.Constraint("Coincident", 7, 1, 8, 1))
sketch7.addConstraint(Sketcher.Constraint("Coincident", 8, 2, 9, 2))
sketch7.addConstraint(Sketcher.Constraint("Tangent", 9, 1, 6, 1))
sketch7.addConstraint(Sketcher.Constraint("Horizontal", 2))
sketch7.addConstraint(Sketcher.Constraint("Horizontal", 6))
sketch7.addConstraint(Sketcher.Constraint("Equal", 0, 1))
sketch7.addConstraint(Sketcher.Constraint("Equal", 3, 5))
sketch7.addConstraint(Sketcher.Constraint("Equal", 5, 7))
sketch7.addConstraint(Sketcher.Constraint("Equal", 4, 8))
sketch7.addConstraint(Sketcher.Constraint("Equal", 7, 9))
sketch7.addConstraint(Sketcher.Constraint("Symmetric", 0, 3, 1, 3, -1, 1))
sketch7.addConstraint(Sketcher.Constraint("Symmetric", 3, 3, 7, 3, -1, 1))
sketch7.addConstraint(Sketcher.Constraint("Symmetric", 4, 3, 8, 3, -1, 1))
sketch7.addConstraint(Sketcher.Constraint("PointOnObject", 0, 3, -1))
sketch7.addConstraint(Sketcher.Constraint("PointOnObject", 4, 3, -2))
sketch7.addConstraint(Sketcher.Constraint("Vertical", 5, 3, 7, 3))
sketch7.addConstraint(Sketcher.Constraint("Vertical", 3, 3, 9, 3))
sketch7.addConstraint(Sketcher.Constraint("Vertical", 2, 2, 3, 1))
sketch7.addConstraint(Sketcher.Constraint("Diameter", 0, Q("0.96 in")))
sketch7.addConstraint(Sketcher.Constraint("DistanceX", 2, 1, 2, 2, Q("1 in")))
sketch7.addConstraint(Sketcher.Constraint("Radius", 3, Q("0.25 in")))
sketch7.addConstraint(Sketcher.Constraint("DistanceY", -1, 1, 2, 2, Q("0.8 in")))
sketch7.addConstraint(Sketcher.Constraint("DistanceX", 1, 3, 0, 3, Q("2.5 in")))
sketch7.addConstraint(Sketcher.Constraint("Radius", 4, Q("16.21408 mm")))
pocket3 = doc.addObject("PartDesign::Pocket", "Pocket002")
body.addObject(pocket3)
pocket3.Profile = sketch7
pocket3.Length = Q("1.53 in")
pocket3.Reversed = True

sketch8 = doc.addObject("Sketcher::SketchObject", "Sketch007")
body.addObject(sketch8)
sketch8.AttachmentSupport = (doc.XY_Plane, [""])
sketch8.MapMode = "FlatFace"
sketch8.addGeometry(Part.Circle(App.Vector(0, -66, 0), App.Vector(0, 0, 1), 3.9), False)
sketch8.addGeometry(Part.Circle(App.Vector(0, 66, 0), App.Vector(0, 0, 1), 3.9), False)
sketch8.addConstraint(Sketcher.Constraint("Equal", 0, 1))
sketch8.addConstraint(Sketcher.Constraint("Symmetric", 0, 3, 1, 3, -1, 1))
sketch8.addConstraint(Sketcher.Constraint("PointOnObject", 0, 3, -2))
sketch8.addConstraint(Sketcher.Constraint("Diameter", 0, Q("0.31 in")))
sketch8.addConstraint(Sketcher.Constraint("DistanceY", 0, 3, -1, 1, Q("2.6 in")))
pocket4 = doc.addObject("PartDesign::Pocket", "Pocket003")
body.addObject(pocket4)
pocket4.Profile = sketch8
pocket4.Length = Q("0.85 in")
pocket4.Reversed = True

sketch9 = doc.addObject("Sketcher::SketchObject", "Sketch008")
body.addObject(sketch9)
sketch9.AttachmentSupport = (doc.XY_Plane, [""])
sketch9.MapMode = "FlatFace"
sketch9.AttachmentOffset = App.Placement(App.Vector(0, 0, -2.2725 * 25.4), App.Rotation())
sketch9.addGeometry(Part.Circle(App.Vector(71.3, -8.6, 0), App.Vector(0, 0, 1), 1.7), False)
sketch9.addGeometry(Part.Circle(App.Vector(71.3, 8.6, 0), App.Vector(0, 0, 1), 1.7), False)
sketch9.addGeometry(Part.Circle(App.Vector(-71.3, -8.6, 0), App.Vector(0, 0, 1), 1.7), False)
sketch9.addGeometry(Part.Circle(App.Vector(-71.3, 8.6, 0), App.Vector(0, 0, 1), 1.7), False)
sketch9.addConstraint(Sketcher.Constraint("Equal", 0, 1))
sketch9.addConstraint(Sketcher.Constraint("Equal", 1, 2))
sketch9.addConstraint(Sketcher.Constraint("Equal", 2, 3))
sketch9.addConstraint(Sketcher.Constraint("Symmetric", 1, 3, 2, 3, -1, 1))
sketch9.addConstraint(Sketcher.Constraint("Symmetric", 0, 3, 3, 3, -1, 1))
sketch9.addConstraint(Sketcher.Constraint("Symmetric", 0, 3, 2, 3, -2))
sketch9.addConstraint(Sketcher.Constraint("Diameter", 0, Q("0.13 in")))
sketch9.addConstraint(Sketcher.Constraint("DistanceY", 0, 3, -1, 1, Q("0.34 in")))
sketch9.addConstraint(Sketcher.Constraint("DistanceX", 2, 3, 0, 3, Q("142.607951 mm")))
pocket5 = doc.addObject("PartDesign::Pocket", "Pocket004")
body.addObject(pocket5)
pocket5.Profile = sketch9
pocket5.Length = Q("5.94 in")
pocket5.Reversed = True

sketch10 = doc.addObject("Sketcher::SketchObject", "Sketch009")
body.addObject(sketch10)
sketch10.AttachmentSupport = (doc.XY_Plane, [""])
sketch10.MapMode = "FlatFace"
sketch10.AttachmentOffset = App.Placement(App.Vector(0, 0, -1.8475 * 25.4), App.Rotation())
sketch10.addGeometry(Part.Circle(App.Vector(-47, 25.4, 0), App.Vector(0, 0, 1), 3.2), False)
sketch10.addGeometry(Part.Circle(App.Vector(47, 25.4, 0), App.Vector(0, 0, 1), 3.2), False)
sketch10.addGeometry(Part.Circle(App.Vector(0, 25.4, 0), App.Vector(0, 0, 1), 3.2), False)
sketch10.addGeometry(Part.Circle(App.Vector(47, -25.4, 0), App.Vector(0, 0, 1), 3.2), False)
sketch10.addGeometry(Part.Circle(App.Vector(0, -25.4, 0), App.Vector(0, 0, 1), 3.2), False)
sketch10.addGeometry(Part.Circle(App.Vector(-47, -25.4, 0), App.Vector(0, 0, 1), 3.2), False)
sketch10.addConstraint(Sketcher.Constraint("Equal", 0, 1))
sketch10.addConstraint(Sketcher.Constraint("Equal", 1, 2))
sketch10.addConstraint(Sketcher.Constraint("Equal", 2, 3))
sketch10.addConstraint(Sketcher.Constraint("Equal", 3, 4))
sketch10.addConstraint(Sketcher.Constraint("Equal", 4, 5))
sketch10.addConstraint(Sketcher.Constraint("Symmetric", 0, 3, 3, 3, -1, 1))
sketch10.addConstraint(Sketcher.Constraint("Symmetric", 2, 3, 4, 3, -1, 1))
sketch10.addConstraint(Sketcher.Constraint("Symmetric", 1, 3, 5, 3, -1, 1))
sketch10.addConstraint(Sketcher.Constraint("Symmetric", 0, 3, 1, 3, -2))
sketch10.addConstraint(Sketcher.Constraint("PointOnObject", 2, 3, -2))
sketch10.addConstraint(Sketcher.Constraint("Horizontal", 1, 3, 2, 3))
sketch10.addConstraint(Sketcher.Constraint("Diameter", 0, Q("0.25 in")))
sketch10.addConstraint(Sketcher.Constraint("DistanceY", -1, 1, 0, 3, Q("1 in")))
sketch10.addConstraint(Sketcher.Constraint("DistanceX", 0, 3, 1, 3, Q("3.7 in")))
pocket6 = doc.addObject("PartDesign::Pocket", "Pocket005")
body.addObject(pocket6)
pocket6.Profile = sketch10
pocket6.Type = "ThroughAll"
pocket6.Midplane = True

doc.recompute()
